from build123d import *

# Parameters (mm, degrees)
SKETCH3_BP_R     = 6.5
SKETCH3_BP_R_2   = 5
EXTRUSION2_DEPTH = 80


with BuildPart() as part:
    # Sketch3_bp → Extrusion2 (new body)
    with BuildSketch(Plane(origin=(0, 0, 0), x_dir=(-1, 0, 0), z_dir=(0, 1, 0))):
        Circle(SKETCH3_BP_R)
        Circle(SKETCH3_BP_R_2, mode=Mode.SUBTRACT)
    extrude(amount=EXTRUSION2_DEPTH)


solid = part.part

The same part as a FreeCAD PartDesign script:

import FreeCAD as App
import Part
import Sketcher
from FreeCAD import Vector
Q = App.Units.Quantity

doc = App.newDocument("Part")
body = doc.addObject("PartDesign::Body", "Body")

sketch1 = body.newObject("Sketcher::SketchObject", "Sketch")
sketch1.AttachmentSupport = (doc.getObject("XZ_Plane"), [""])
sketch1.MapMode = "FlatFace"
sketch1.addGeometry(Part.Circle(Vector(0, 0, 0), Vector(0, 0, 1), 6.5), False)
sketch1.addGeometry(Part.Circle(Vector(0, 0, 0), Vector(0, 0, 1), 5), False)
sketch1.addConstraint(Sketcher.Constraint("Coincident", 0, 3, -1, 1))
sketch1.addConstraint(Sketcher.Constraint("Coincident", 1, 3, -1, 1))
sketch1.addConstraint(Sketcher.Constraint("Diameter", 0, Q("13 mm")))
sketch1.addConstraint(Sketcher.Constraint("Diameter", 1, Q("10 mm")))
pad1 = body.newObject("PartDesign::Pad", "Pad")
pad1.Profile = sketch1
pad1.Length = 80
pad1.Reversed = True

doc.recompute()
